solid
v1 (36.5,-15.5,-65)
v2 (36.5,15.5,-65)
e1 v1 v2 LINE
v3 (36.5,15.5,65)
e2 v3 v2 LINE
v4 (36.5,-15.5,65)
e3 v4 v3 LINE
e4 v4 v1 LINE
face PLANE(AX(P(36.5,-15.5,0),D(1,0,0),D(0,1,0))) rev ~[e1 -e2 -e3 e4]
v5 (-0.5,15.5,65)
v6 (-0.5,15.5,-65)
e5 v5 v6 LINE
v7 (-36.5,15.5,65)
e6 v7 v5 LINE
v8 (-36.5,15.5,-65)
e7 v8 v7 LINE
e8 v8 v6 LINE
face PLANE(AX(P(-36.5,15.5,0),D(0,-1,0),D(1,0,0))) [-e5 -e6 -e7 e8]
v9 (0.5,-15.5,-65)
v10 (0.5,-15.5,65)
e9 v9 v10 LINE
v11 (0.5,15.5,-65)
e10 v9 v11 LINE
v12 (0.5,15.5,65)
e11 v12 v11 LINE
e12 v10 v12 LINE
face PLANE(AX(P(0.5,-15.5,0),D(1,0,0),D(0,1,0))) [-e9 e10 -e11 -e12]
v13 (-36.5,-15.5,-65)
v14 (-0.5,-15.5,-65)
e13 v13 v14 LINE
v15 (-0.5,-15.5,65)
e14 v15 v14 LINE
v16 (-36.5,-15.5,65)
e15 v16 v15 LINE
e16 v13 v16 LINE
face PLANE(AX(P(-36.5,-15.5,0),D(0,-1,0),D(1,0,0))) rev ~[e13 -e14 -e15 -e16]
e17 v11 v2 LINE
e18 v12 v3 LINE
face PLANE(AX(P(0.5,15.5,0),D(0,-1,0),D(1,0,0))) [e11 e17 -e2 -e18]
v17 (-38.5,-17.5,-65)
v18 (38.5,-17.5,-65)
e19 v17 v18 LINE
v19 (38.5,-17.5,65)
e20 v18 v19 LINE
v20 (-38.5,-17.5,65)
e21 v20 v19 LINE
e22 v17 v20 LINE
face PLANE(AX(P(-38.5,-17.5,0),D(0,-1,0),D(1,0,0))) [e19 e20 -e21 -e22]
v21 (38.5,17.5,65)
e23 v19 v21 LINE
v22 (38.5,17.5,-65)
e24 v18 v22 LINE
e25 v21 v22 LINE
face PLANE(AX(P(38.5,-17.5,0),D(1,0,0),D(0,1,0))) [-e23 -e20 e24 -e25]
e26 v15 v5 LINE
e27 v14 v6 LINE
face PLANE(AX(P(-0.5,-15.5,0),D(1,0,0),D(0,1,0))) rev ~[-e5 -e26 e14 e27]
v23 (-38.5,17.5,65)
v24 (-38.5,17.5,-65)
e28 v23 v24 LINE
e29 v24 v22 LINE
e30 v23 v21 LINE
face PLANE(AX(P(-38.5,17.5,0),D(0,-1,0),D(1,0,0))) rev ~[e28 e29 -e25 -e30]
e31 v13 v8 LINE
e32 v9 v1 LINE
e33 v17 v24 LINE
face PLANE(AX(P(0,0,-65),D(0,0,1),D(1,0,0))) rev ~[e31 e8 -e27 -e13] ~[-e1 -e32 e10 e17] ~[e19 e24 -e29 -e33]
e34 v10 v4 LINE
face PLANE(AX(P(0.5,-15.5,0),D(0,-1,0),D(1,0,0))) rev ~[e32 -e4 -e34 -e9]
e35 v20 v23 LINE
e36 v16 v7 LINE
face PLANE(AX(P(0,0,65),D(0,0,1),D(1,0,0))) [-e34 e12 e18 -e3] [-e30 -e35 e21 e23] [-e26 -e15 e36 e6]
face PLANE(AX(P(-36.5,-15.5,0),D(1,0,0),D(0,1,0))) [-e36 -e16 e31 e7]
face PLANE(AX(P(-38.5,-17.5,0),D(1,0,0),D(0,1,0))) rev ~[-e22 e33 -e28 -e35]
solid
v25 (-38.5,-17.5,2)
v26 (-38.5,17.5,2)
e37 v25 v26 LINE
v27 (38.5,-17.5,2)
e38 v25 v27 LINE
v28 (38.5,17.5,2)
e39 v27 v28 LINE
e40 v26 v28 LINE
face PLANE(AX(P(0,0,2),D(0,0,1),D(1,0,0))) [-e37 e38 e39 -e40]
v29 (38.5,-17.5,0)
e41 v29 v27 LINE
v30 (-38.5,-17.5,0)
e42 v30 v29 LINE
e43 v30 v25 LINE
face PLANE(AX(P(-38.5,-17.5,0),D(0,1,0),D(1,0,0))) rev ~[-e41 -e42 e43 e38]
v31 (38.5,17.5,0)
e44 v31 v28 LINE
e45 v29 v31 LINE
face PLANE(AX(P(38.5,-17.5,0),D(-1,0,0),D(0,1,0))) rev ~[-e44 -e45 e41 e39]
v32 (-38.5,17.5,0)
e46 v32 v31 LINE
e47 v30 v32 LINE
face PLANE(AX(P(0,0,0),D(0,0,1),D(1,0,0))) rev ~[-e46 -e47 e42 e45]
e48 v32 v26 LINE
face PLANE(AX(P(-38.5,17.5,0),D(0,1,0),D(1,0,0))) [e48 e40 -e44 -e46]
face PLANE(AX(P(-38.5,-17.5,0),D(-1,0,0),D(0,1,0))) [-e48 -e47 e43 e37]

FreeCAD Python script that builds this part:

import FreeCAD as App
import Part
import Sketcher

V = App.Vector
Q = App.Units.Quantity

doc = App.newDocument("Part")
body = doc.addObject("PartDesign::Body", "Body")

sketch1 = body.newObject("Sketcher::SketchObject", "Sketch")
sketch1.AttachmentSupport = (doc.getObject("XY_Plane"), [""])
sketch1.MapMode = "FlatFace"
sketch1.addGeometry(Part.LineSegment(V(-38, 18, 0), V(-38, -18, 0)), False)
sketch1.addGeometry(Part.LineSegment(V(-38, -18, 0), V(38, -18, 0)), False)
sketch1.addGeometry(Part.LineSegment(V(38, -18, 0), V(38, 18, 0)), False)
sketch1.addGeometry(Part.LineSegment(V(38, 18, 0), V(-38, 18, 0)), False)
sketch1.addGeometry(Part.LineSegment(V(0, -16, 0), V(-36, -16, 0)), False)
sketch1.addGeometry(Part.LineSegment(V(-36, -16, 0), V(-36, 16, 0)), False)
sketch1.addGeometry(Part.LineSegment(V(-36, 16, 0), V(0, 16, 0)), False)
sketch1.addGeometry(Part.LineSegment(V(0, 16, 0), V(0, -16, 0)), False)
sketch1.addGeometry(Part.LineSegment(V(36, -16, 0), V(0, -16, 0)), False)
sketch1.addGeometry(Part.LineSegment(V(0, -16, 0), V(0, 16, 0)), False)
sketch1.addGeometry(Part.LineSegment(V(0, 16, 0), V(36, 16, 0)), False)
sketch1.addGeometry(Part.LineSegment(V(36, 16, 0), V(36, -16, 0)), False)
sketch1.addConstraint(Sketcher.Constraint("Coincident", 0, 2, 1, 1))
sketch1.addConstraint(Sketcher.Constraint("Coincident", 1, 2, 2, 1))
sketch1.addConstraint(Sketcher.Constraint("Coincident", 2, 2, 3, 1))
sketch1.addConstraint(Sketcher.Constraint("Coincident", 3, 2, 0, 1))
sketch1.addConstraint(Sketcher.Constraint("Coincident", 4, 2, 5, 1))
sketch1.addConstraint(Sketcher.Constraint("Coincident", 5, 2, 6, 1))
sketch1.addConstraint(Sketcher.Constraint("Coincident", 6, 2, 7, 1))
sketch1.addConstraint(Sketcher.Constraint("Coincident", 7, 2, 4, 1))
sketch1.addConstraint(Sketcher.Constraint("Coincident", 8, 2, 9, 1))
sketch1.addConstraint(Sketcher.Constraint("Coincident", 9, 2, 10, 1))
sketch1.addConstraint(Sketcher.Constraint("Coincident", 10, 2, 11, 1))
sketch1.addConstraint(Sketcher.Constraint("Coincident", 11, 2, 8, 1))
sketch1.addConstraint(Sketcher.Constraint("Vertical", 0))
sketch1.addConstraint(Sketcher.Constraint("Horizontal", 1))
sketch1.addConstraint(Sketcher.Constraint("Vertical", 2))
sketch1.addConstraint(Sketcher.Constraint("Horizontal", 3))
sketch1.addConstraint(Sketcher.Constraint("Horizontal", 4))
sketch1.addConstraint(Sketcher.Constraint("Vertical", 5))
sketch1.addConstraint(Sketcher.Constraint("Horizontal", 6))
sketch1.addConstraint(Sketcher.Constraint("Vertical", 7))
sketch1.addConstraint(Sketcher.Constraint("Horizontal", 8))
sketch1.addConstraint(Sketcher.Constraint("Vertical", 9))
sketch1.addConstraint(Sketcher.Constraint("Horizontal", 10))
sketch1.addConstraint(Sketcher.Constraint("Vertical", 11))
sketch1.addConstraint(Sketcher.Constraint("Symmetric", 0, 2, 2, 2, -1, 1))
sketch1.addConstraint(Sketcher.Constraint("Symmetric", 6, 2, 8, 2, -1, 1))
sketch1.addConstraint(Sketcher.Constraint("Symmetric", 4, 2, 10, 2, -1, 1))
sketch1.addConstraint(Sketcher.Constraint("Horizontal", 7, 2, 8, 2))
sketch1.addConstraint(Sketcher.Constraint("DistanceX", 1, 1, 1, 2, Q("77 mm")))
sketch1.addConstraint(Sketcher.Constraint("DistanceX", 4, 2, 4, 1, Q("36 mm")))
sketch1.addConstraint(Sketcher.Constraint("DistanceY", 0, 2, 0, 1, Q("35 mm")))
sketch1.addConstraint(Sketcher.Constraint("DistanceY", 5, 1, 5, 2, Q("31 mm")))
sketch1.addConstraint(Sketcher.Constraint("DistanceX", 0, 2, 4, 2, Q("2 mm")))
pad1 = body.newObject("PartDesign::Pad", "Pad")
pad1.Profile = sketch1
pad1.Length = 130
pad1.Midplane = True
body2 = doc.addObject("PartDesign::Body", "Body001")

sketch2 = body2.newObject("Sketcher::SketchObject", "Sketch001")
sketch2.AttachmentSupport = (doc.getObject("XY_Plane001"), [""])
sketch2.MapMode = "FlatFace"
sketch2.addGeometry(Part.LineSegment(V(-38, 18, 0), V(-38, -18, 0)), False)
sketch2.addGeometry(Part.LineSegment(V(-38, -18, 0), V(38, -18, 0)), False)
sketch2.addGeometry(Part.LineSegment(V(38, -18, 0), V(38, 18, 0)), False)
sketch2.addGeometry(Part.LineSegment(V(38, 18, 0), V(-38, 18, 0)), False)
sketch2.addConstraint(Sketcher.Constraint("Coincident", 0, 2, 1, 1))
sketch2.addConstraint(Sketcher.Constraint("Coincident", 1, 2, 2, 1))
sketch2.addConstraint(Sketcher.Constraint("Coincident", 2, 2, 3, 1))
sketch2.addConstraint(Sketcher.Constraint("Coincident", 3, 2, 0, 1))
sketch2.addConstraint(Sketcher.Constraint("Vertical", 0))
sketch2.addConstraint(Sketcher.Constraint("Horizontal", 1))
sketch2.addConstraint(Sketcher.Constraint("Vertical", 2))
sketch2.addConstraint(Sketcher.Constraint("Horizontal", 3))
sketch2.addConstraint(Sketcher.Constraint("Symmetric", 0, 2, 2, 2, -1, 1))
sketch2.addConstraint(Sketcher.Constraint("DistanceX", 1, 1, 1, 2, Q("77 mm")))
sketch2.addConstraint(Sketcher.Constraint("DistanceY", 0, 2, 0, 1, Q("35 mm")))
pad2 = body2.newObject("PartDesign::Pad", "Pad001")
pad2.Profile = sketch2
pad2.Length = 2

doc.recompute()
